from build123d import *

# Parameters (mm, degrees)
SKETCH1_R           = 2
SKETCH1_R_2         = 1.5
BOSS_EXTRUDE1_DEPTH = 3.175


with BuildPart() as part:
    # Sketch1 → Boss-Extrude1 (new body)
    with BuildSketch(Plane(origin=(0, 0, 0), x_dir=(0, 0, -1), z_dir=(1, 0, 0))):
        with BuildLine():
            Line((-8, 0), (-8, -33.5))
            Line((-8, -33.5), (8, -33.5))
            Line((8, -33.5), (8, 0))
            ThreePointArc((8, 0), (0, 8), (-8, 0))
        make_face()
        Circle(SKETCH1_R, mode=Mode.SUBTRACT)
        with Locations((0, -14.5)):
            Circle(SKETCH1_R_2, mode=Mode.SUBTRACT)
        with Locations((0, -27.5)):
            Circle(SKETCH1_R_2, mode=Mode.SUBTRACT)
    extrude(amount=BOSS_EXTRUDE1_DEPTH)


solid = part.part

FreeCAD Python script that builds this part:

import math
import FreeCAD as App
import Part
import Sketcher
from FreeCAD import Vector
Q = App.Units.Quantity

doc = App.newDocument("Part")
body = doc.addObject("PartDesign::Body", "Body")

# Sketch on YZ plane
sketch1 = body.newObject("Sketcher::SketchObject", "Sketch")
sketch1.AttachmentSupport = (doc.getObject("YZ_Plane"), [""])
sketch1.MapMode = "FlatFace"
sketch1.addGeometry(Part.LineSegment(Vector(0, 8, 0), Vector(-33.5, 8, 0)), False)
sketch1.addGeometry(Part.LineSegment(Vector(-33.5, 8, 0), Vector(-33.5, -8, 0)), False)
sketch1.addGeometry(Part.LineSegment(Vector(-33.5, -8, 0), Vector(0, -8, 0)), False)
sketch1.addGeometry(Part.ArcOfCircle(Part.Circle(Vector(0, 0, 0), Vector(0, 0, 1), 8), math.radians(-90), math.radians(90)), False)
sketch1.addGeometry(Part.Circle(Vector(-27.5, 0, 0), Vector(0, 0, 1), 1.5), False)
sketch1.addGeometry(Part.Circle(Vector(-14.5, 0, 0), Vector(0, 0, 1), 1.5), False)
sketch1.addGeometry(Part.Circle(Vector(0, 0, 0), Vector(0, 0, 1), 2), False)
sketch1.addConstraint(Sketcher.Constraint("Coincident", 0, 2, 1, 1))
sketch1.addConstraint(Sketcher.Constraint("Coincident", 1, 2, 2, 1))
sketch1.addConstraint(Sketcher.Constraint("Tangent", 2, 2, 3, 1))
sketch1.addConstraint(Sketcher.Constraint("Tangent", 3, 2, 0, 1))
sketch1.addConstraint(Sketcher.Constraint("Horizontal", 0))
sketch1.addConstraint(Sketcher.Constraint("Vertical", 1))
sketch1.addConstraint(Sketcher.Constraint("Horizontal", 2))
sketch1.addConstraint(Sketcher.Constraint("Coincident", 3, 3, -1, 1))
sketch1.addConstraint(Sketcher.Constraint("Coincident", 6, 3, -1, 1))
sketch1.addConstraint(Sketcher.Constraint("Equal", 4, 5))
sketch1.addConstraint(Sketcher.Constraint("PointOnObject", 4, 3, -1))
sketch1.addConstraint(Sketcher.Constraint("PointOnObject", 5, 3, -1))
sketch1.addConstraint(Sketcher.Constraint("Diameter", 4, Q("3 mm")))
sketch1.addConstraint(Sketcher.Constraint("Diameter", 6, Q("4 mm")))
sketch1.addConstraint(Sketcher.Constraint("Radius", 3, Q("8 mm")))
sketch1.addConstraint(Sketcher.Constraint("DistanceX", 0, 2, 0, 1, Q("33.5 mm")))
sketch1.addConstraint(Sketcher.Constraint("DistanceX", 4, 3, 5, 3, Q("13 mm")))
sketch1.addConstraint(Sketcher.Constraint("DistanceX", 0, 2, 4, 3, Q("6 mm")))
pad1 = body.newObject("PartDesign::Pad", "Pad")
pad1.Profile = sketch1
pad1.Length = 3.175

doc.recompute()
